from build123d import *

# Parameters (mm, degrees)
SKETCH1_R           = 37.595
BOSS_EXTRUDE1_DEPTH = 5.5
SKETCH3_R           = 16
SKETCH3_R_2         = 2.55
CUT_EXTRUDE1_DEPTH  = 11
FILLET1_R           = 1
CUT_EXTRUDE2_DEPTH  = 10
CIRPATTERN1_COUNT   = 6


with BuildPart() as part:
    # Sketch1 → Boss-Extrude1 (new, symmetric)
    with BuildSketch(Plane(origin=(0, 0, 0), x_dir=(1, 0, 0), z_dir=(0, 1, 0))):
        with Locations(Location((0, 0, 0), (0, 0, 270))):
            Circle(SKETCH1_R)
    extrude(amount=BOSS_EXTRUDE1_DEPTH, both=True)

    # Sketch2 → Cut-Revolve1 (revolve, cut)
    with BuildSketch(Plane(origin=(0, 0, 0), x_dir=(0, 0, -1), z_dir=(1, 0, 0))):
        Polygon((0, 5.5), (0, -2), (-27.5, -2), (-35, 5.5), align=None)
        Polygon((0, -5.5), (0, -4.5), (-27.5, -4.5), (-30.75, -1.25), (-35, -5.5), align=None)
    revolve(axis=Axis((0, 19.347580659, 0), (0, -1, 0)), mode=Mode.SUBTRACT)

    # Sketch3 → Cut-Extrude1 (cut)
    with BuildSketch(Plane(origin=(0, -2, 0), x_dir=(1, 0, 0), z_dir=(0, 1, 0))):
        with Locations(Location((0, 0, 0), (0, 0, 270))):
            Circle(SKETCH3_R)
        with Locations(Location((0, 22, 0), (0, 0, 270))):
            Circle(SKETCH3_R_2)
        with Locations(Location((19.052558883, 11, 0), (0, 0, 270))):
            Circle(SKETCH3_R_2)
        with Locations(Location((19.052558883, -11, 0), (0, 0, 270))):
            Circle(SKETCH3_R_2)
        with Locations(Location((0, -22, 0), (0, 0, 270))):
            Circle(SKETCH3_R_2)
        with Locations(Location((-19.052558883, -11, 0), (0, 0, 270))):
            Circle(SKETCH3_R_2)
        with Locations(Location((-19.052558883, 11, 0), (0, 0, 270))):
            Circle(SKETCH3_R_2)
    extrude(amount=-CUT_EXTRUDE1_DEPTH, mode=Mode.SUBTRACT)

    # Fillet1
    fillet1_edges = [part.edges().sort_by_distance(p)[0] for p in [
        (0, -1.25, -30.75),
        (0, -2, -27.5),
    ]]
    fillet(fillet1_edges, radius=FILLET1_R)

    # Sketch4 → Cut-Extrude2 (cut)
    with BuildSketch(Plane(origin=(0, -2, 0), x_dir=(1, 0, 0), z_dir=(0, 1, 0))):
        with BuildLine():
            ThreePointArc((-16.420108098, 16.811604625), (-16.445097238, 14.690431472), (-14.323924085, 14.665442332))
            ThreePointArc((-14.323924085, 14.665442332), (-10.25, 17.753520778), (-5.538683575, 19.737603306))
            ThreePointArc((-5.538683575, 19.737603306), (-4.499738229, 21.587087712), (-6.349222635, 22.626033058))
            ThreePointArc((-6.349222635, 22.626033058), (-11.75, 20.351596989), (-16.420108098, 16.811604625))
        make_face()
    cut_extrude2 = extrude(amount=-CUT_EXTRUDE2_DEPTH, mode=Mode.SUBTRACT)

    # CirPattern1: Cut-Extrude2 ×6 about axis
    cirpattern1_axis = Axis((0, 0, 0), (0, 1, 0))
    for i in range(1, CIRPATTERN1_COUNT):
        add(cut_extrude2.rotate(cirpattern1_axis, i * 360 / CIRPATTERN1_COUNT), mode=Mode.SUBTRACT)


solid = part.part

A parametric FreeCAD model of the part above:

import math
import FreeCAD as App
import Part
import Sketcher
Q = App.Units.Quantity


def edges_at(feature, points):
    """Names of the edges that pass closest to the given points."""
    edges = feature.Shape.Edges
    near = lambda p: min(range(len(edges)), key=lambda i: edges[i].distToShape(Part.Vertex(*p))[0])
    return sorted({f"Edge{near(p) + 1}" for p in points})


def add_polygon(sketch, points):
    """Adds a closed chain of lines whose ends are joined by coincident constraints."""
    first, n = sketch.GeometryCount, len(points)
    for a, b in zip(points, points[1:] + points[:1]):
        sketch.addGeometry(Part.LineSegment(App.Vector(*a, 0), App.Vector(*b, 0)), False)
    for i in range(n):
        sketch.addConstraint(Sketcher.Constraint("Coincident", first + i, 2, first + (i + 1) % n, 1))

doc = App.newDocument("Part")
body = doc.addObject("PartDesign::Body", "Body")

# Sketch on XZ plane
sketch1 = body.newObject("Sketcher::SketchObject", "Sketch")
sketch1.AttachmentSupport = (doc.getObject("XZ_Plane"), [""])
sketch1.MapMode = "FlatFace"
sketch1.addGeometry(Part.Circle(App.Vector(0, 0, 0), App.Vector(0, 0, 1), 38), False)
sketch1.addConstraint([
    Sketcher.Constraint("Coincident", 0, 3, -1, 1),
    Sketcher.Constraint("Diameter", 0, 75.19),
])
pad1 = body.newObject("PartDesign::Pad", "Pad")
pad1.Profile = sketch1
pad1.Length = 11
pad1.Midplane = True

# Sketch on YZ plane
sketch2 = body.newObject("Sketcher::SketchObject", "Sketch001")
sketch2.AttachmentSupport = (doc.getObject("YZ_Plane"), [""])
sketch2.MapMode = "FlatFace"
add_polygon(sketch2, [(-2, 0), (5.5, 0), (5.5, 35), (-2, 27.5)])  # lines 0-3
add_polygon(sketch2, [(-5.5, 0), (-4.5, 0), (-4.5, 27.5), (-1.2, 30.8), (-5.5, 35)])  # lines 4-8
sketch2.addConstraint([
    Sketcher.Constraint("Horizontal", 0),
    Sketcher.Constraint("Vertical", 1),
    Sketcher.Constraint("Vertical", 3),
    Sketcher.Constraint("Horizontal", 4),
    Sketcher.Constraint("Vertical", 5),
    Sketcher.Constraint("Vertical", 8),
    Sketcher.Constraint("Symmetric", 0, 2, 8, 2, -1, 1),
    Sketcher.Constraint("PointOnObject", 0, 2, -1),
    Sketcher.Constraint("Parallel", 2, 6),
    Sketcher.Constraint("Perpendicular", 6, 7),
    Sketcher.Constraint("Horizontal", 2, 2, 5, 2),
    Sketcher.Constraint("Horizontal", 1, 2, 7, 2),
    Sketcher.Constraint("DistanceX", 4, 1, 4, 2, 1.0),
    Sketcher.Constraint("DistanceY", 1, 1, 1, 2, 35.0),
    Sketcher.Constraint("Angle", 2, Q("-135 deg")),
    Sketcher.Constraint("DistanceX", 0, 1, 0, 2, 7.5),
    Sketcher.Constraint("DistanceX", 2, 2, -1, 1, 2.0),
])
groove = body.newObject("PartDesign::Groove", "Groove")
groove.Profile = sketch2
groove.ReferenceAxis = (sketch2, ["H_Axis"])
groove.Angle = 360

# Sketch on XZ plane
sketch3 = body.newObject("Sketcher::SketchObject", "Sketch002")
sketch3.AttachmentSupport = (doc.getObject("XZ_Plane"), [""])
sketch3.MapMode = "FlatFace"
sketch3.AttachmentOffset = App.Placement(App.Vector(0, 0, 2), App.Rotation())
sketch3.addGeometry([
    Part.Circle(App.Vector(0, 0, 0), App.Vector(0, 0, 1), 16),  # 0
    Part.Circle(App.Vector(0, -22, 0), App.Vector(0, 0, 1), 2.5),  # 1
    Part.Circle(App.Vector(19.1, -11, 0), App.Vector(0, 0, 1), 2.5),  # 2
    Part.Circle(App.Vector(19.1, 11, 0), App.Vector(0, 0, 1), 2.5),  # 3
    Part.Circle(App.Vector(0, 22, 0), App.Vector(0, 0, 1), 2.5),  # 4
    Part.Circle(App.Vector(-19.1, 11, 0), App.Vector(0, 0, 1), 2.5),  # 5
    Part.Circle(App.Vector(-19.1, -11, 0), App.Vector(0, 0, 1), 2.5),  # 6
], False)
sketch3.addConstraint([
    Sketcher.Constraint("Coincident", 0, 3, -1, 1),
    Sketcher.Constraint("Equal", 1, 2),
    Sketcher.Constraint("Equal", 2, 3),
    Sketcher.Constraint("Equal", 3, 4),
    Sketcher.Constraint("Equal", 4, 5),
    Sketcher.Constraint("Equal", 5, 6),
    Sketcher.Constraint("Symmetric", 1, 3, 4, 3, -1, 1),
    Sketcher.Constraint("Symmetric", 2, 3, 5, 3, -1, 1),
    Sketcher.Constraint("Symmetric", 3, 3, 6, 3, -1, 1),
    Sketcher.Constraint("Symmetric", 3, 3, 5, 3, -2),
    Sketcher.Constraint("PointOnObject", 1, 3, -2),
    Sketcher.Constraint("Diameter", 0, 32.0),
    Sketcher.Constraint("Diameter", 1, 5.1),
    Sketcher.Constraint("DistanceY", 1, 3, -1, 1, 22.0),
    Sketcher.Constraint("DistanceY", 2, 3, -1, 1, 11.0),
    Sketcher.Constraint("DistanceX", -1, 1, 2, 3, 19.052559),
])
pocket1 = body.newObject("PartDesign::Pocket", "Pocket")
pocket1.Profile = sketch3
pocket1.Length = 11
pocket1.Reversed = True
doc.recompute()

fillet = body.newObject("PartDesign::Fillet", "Fillet")
fillet.Base = (pocket1, edges_at(pocket1, [(0, -1.25, -30.75), (0, -2, -27.5)]))
fillet.Radius = 1

# Sketch on XZ plane
sketch4 = body.newObject("Sketcher::SketchObject", "Sketch003")
sketch4.AttachmentSupport = (doc.getObject("XZ_Plane"), [""])
sketch4.MapMode = "FlatFace"
sketch4.AttachmentOffset = App.Placement(App.Vector(0, 0, 2), App.Rotation())
sketch4.addGeometry([
    Part.ArcOfCircle(Part.Circle(App.Vector(-15.4, -15.7, 0), App.Vector(0, 0, 1), 1.5), math.radians(46), math.radians(226)),
    Part.ArcOfCircle(Part.Circle(App.Vector(0, 0, 0), App.Vector(0, 0, 1), 20.5), math.radians(-134), math.radians(-106)),
    Part.ArcOfCircle(Part.Circle(App.Vector(-5.9, -21.2, 0), App.Vector(0, 0, 1), 1.5), math.radians(-106), math.radians(74)),
    Part.ArcOfCircle(Part.Circle(App.Vector(0, 0, 0), App.Vector(0, 0, 1), 23.5), math.radians(-134), math.radians(-106)),
], False)
sketch4.addConstraint([
    Sketcher.Constraint("Tangent", 0, 1, 1, 1),
    Sketcher.Constraint("Tangent", 1, 2, 2, 2),
    Sketcher.Constraint("Tangent", 2, 1, 3, 2),
    Sketcher.Constraint("Tangent", 3, 1, 0, 2),
    Sketcher.Constraint("Coincident", 1, 3, -1, 1),
    Sketcher.Constraint("Coincident", 3, 3, -1, 1),
    Sketcher.Constraint("Radius", 0, 1.5),
    Sketcher.Constraint("Radius", 1, 20.5),
    Sketcher.Constraint("DistanceY", 1, 2, 3, 1, 2.925999),
    Sketcher.Constraint("DistanceX", 0, 1, 2, 1, 7.974701),
])
pocket2 = body.newObject("PartDesign::Pocket", "Pocket001")
pocket2.Profile = sketch4
pocket2.Length = 10
pocket2.Reversed = True
doc.recompute()

polarpattern = body.newObject("PartDesign::PolarPattern", "PolarPattern")
polarpattern.Originals = [pocket2]
polarpattern.Axis = (doc.getObject("Y_Axis"), [""])
polarpattern.Angle = 360
polarpattern.Occurrences = 6
body.Tip = polarpattern

doc.recompute()
